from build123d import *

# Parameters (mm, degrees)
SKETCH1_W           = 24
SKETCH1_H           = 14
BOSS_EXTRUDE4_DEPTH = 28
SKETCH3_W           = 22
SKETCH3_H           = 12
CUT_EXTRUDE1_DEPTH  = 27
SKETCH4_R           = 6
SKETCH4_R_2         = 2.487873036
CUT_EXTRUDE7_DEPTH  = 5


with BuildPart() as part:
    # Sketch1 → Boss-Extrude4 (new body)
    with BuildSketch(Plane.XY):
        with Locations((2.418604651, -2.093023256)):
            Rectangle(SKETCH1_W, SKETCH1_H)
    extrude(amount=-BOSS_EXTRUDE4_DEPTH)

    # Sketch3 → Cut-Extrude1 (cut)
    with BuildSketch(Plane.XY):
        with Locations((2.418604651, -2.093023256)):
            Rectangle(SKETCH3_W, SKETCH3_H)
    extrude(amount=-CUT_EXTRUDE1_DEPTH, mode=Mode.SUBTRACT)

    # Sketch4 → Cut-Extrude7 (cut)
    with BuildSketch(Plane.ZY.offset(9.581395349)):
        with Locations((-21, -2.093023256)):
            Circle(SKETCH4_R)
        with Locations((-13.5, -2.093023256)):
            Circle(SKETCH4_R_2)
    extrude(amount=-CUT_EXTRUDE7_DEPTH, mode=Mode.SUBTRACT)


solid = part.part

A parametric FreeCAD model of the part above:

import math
import FreeCAD as App
import Part
import Sketcher

doc = App.newDocument("Part")
params = doc.addObject("Spreadsheet::Sheet", "Params")
for row, (alias, value) in enumerate([
    ("sketch1_width", "24 mm"),
    ("sketch1_height", "14 mm"),
    ("pad1_length", "28 mm"),
    ("sketch2_width", "22 mm"),
    ("sketch2_height", "12 mm"),
    ("pocket1_length", "27 mm"),
    ("sketch3_radius", "6 mm"),
    ("pocket2_length", "5 mm"),
], start=1):
    params.set(f"A{row}", alias)
    params.set(f"B{row}", "=" + value)
    params.setAlias(f"B{row}", alias)

body = doc.addObject("PartDesign::Body", "Body")

# Sketch on XY plane
sketch1 = body.newObject("Sketcher::SketchObject", "Sketch")
sketch1.AttachmentSupport = (doc.getObject("XY_Plane"), [""])
sketch1.MapMode = "FlatFace"
sketch1.addGeometry([
    Part.LineSegment(App.Vector(-10, 5, 0), App.Vector(-10, -9, 0)),
    Part.LineSegment(App.Vector(-10, -9, 0), App.Vector(14, -9, 0)),
    Part.LineSegment(App.Vector(14, -9, 0), App.Vector(14, 5, 0)),
    Part.LineSegment(App.Vector(14, 5, 0), App.Vector(-10, 5, 0)),
], False)
sketch1.addConstraint([
    Sketcher.Constraint("Coincident", 0, 2, 1, 1),
    Sketcher.Constraint("Coincident", 1, 2, 2, 1),
    Sketcher.Constraint("Coincident", 2, 2, 3, 1),
    Sketcher.Constraint("Coincident", 3, 2, 0, 1),
    Sketcher.Constraint("Vertical", 0),
    Sketcher.Constraint("Horizontal", 1),
    Sketcher.Constraint("Vertical", 2),
    Sketcher.Constraint("Horizontal", 3),
    Sketcher.Constraint("DistanceX", 1, 1, 1, 2, 24.0),
    Sketcher.Constraint("DistanceY", 0, 2, 0, 1, 14.0),
    Sketcher.Constraint("DistanceX", 0, 2, -1, 1, 9.581395),
    Sketcher.Constraint("DistanceY", 0, 2, -1, 1, 9.093023),
])
sketch1.setExpression("Constraints[8]", "Params.sketch1_width")
sketch1.setExpression("Constraints[9]", "Params.sketch1_height")
pad1 = body.newObject("PartDesign::Pad", "Pad")
pad1.Profile = sketch1
pad1.setExpression("Length", "Params.pad1_length")
pad1.Reversed = True

# Sketch on XY plane
sketch2 = body.newObject("Sketcher::SketchObject", "Sketch001")
sketch2.AttachmentSupport = (doc.getObject("XY_Plane"), [""])
sketch2.MapMode = "FlatFace"
sketch2.addGeometry([
    Part.LineSegment(App.Vector(-9, 4, 0), App.Vector(-9, -8, 0)),
    Part.LineSegment(App.Vector(-9, -8, 0), App.Vector(13, -8, 0)),
    Part.LineSegment(App.Vector(13, -8, 0), App.Vector(13, 4, 0)),
    Part.LineSegment(App.Vector(13, 4, 0), App.Vector(-9, 4, 0)),
], False)
sketch2.addConstraint([
    Sketcher.Constraint("Coincident", 0, 2, 1, 1),
    Sketcher.Constraint("Coincident", 1, 2, 2, 1),
    Sketcher.Constraint("Coincident", 2, 2, 3, 1),
    Sketcher.Constraint("Coincident", 3, 2, 0, 1),
    Sketcher.Constraint("Vertical", 0),
    Sketcher.Constraint("Horizontal", 1),
    Sketcher.Constraint("Vertical", 2),
    Sketcher.Constraint("Horizontal", 3),
    Sketcher.Constraint("DistanceX", 1, 1, 1, 2, 22.0),
    Sketcher.Constraint("DistanceY", 0, 2, 0, 1, 12.0),
    Sketcher.Constraint("DistanceX", 0, 2, -1, 1, 8.581395),
    Sketcher.Constraint("DistanceY", 0, 2, -1, 1, 8.093023),
])
sketch2.setExpression("Constraints[8]", "Params.sketch2_width")
sketch2.setExpression("Constraints[9]", "Params.sketch2_height")
pocket1 = body.newObject("PartDesign::Pocket", "Pocket")
pocket1.Profile = sketch2
pocket1.setExpression("Length", "Params.pocket1_length")

# Sketch on YZ plane
sketch3 = body.newObject("Sketcher::SketchObject", "Sketch002")
sketch3.AttachmentSupport = (doc.getObject("YZ_Plane"), [""])
sketch3.MapMode = "FlatFace"
sketch3.AttachmentOffset = App.Placement(App.Vector(0, 0, -9.581395), App.Rotation())
sketch3.addGeometry([
    Part.ArcOfCircle(Part.Circle(App.Vector(-2.1, -21, 0), App.Vector(0, 0, 1), 6), math.radians(107), math.radians(433)),
    Part.ArcOfCircle(Part.Circle(App.Vector(-2.1, -13.5, 0), App.Vector(0, 0, 1), 2.5), math.radians(-45), math.radians(225)),
], False)
sketch3.addConstraint([
    Sketcher.Constraint("Coincident", 0, 1, 1, 2),
    Sketcher.Constraint("Coincident", 1, 1, 0, 2),
    Sketcher.Constraint("Horizontal", 0, 1, 1, 1),
    Sketcher.Constraint("Radius", 0, 6.0),
    Sketcher.Constraint("DistanceY", 0, 3, -1, 1, 21.0),
    Sketcher.Constraint("DistanceY", 1, 3, -1, 1, 13.5),
    Sketcher.Constraint("Radius", 1, 2.487873),
    Sketcher.Constraint("DistanceX", 1, 1, -1, 1, 0.33728),
])
sketch3.setExpression("Constraints[3]", "Params.sketch3_radius")
pocket2 = body.newObject("PartDesign::Pocket", "Pocket001")
pocket2.Profile = sketch3
pocket2.setExpression("Length", "Params.pocket2_length")
pocket2.Reversed = True

doc.recompute()
